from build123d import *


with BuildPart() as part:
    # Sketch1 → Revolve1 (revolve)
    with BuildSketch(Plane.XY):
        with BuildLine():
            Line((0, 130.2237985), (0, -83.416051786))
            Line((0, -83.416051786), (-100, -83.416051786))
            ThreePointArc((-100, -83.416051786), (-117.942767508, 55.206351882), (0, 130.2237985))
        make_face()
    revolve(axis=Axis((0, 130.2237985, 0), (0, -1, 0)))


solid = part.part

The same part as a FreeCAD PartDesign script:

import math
import FreeCAD as App
import Part
import Sketcher

doc = App.newDocument("Part")
params = doc.addObject("Spreadsheet::Sheet", "Params")
for row, (alias, value) in enumerate([
    ("sketch1_width", "100 mm"),
    ("revolution_angle", "360 deg"),
], start=1):
    params.set(f"A{row}", alias)
    params.set(f"B{row}", "=" + value)
    params.setAlias(f"B{row}", alias)

body = doc.addObject("PartDesign::Body", "Body")

sketch1 = doc.addObject("Sketcher::SketchObject", "Sketch")
body.addObject(sketch1)
sketch1.AttachmentSupport = (doc.XY_Plane, [""])
sketch1.MapMode = "FlatFace"
sketch1.addGeometry(Part.LineSegment(App.Vector(0, -83, 0), App.Vector(0, 130, 0)), False)
sketch1.addGeometry(Part.ArcOfCircle(Part.Circle(App.Vector(0, 0, 0), App.Vector(0, 0, 1), 130), math.radians(90), math.radians(220)), False)
sketch1.addGeometry(Part.LineSegment(App.Vector(-100, -83, 0), App.Vector(0, -83, 0)), False)
sketch1.addConstraint(Sketcher.Constraint("Coincident", 0, 2, 1, 1))
sketch1.addConstraint(Sketcher.Constraint("Coincident", 1, 2, 2, 1))
sketch1.addConstraint(Sketcher.Constraint("Coincident", 2, 2, 0, 1))
sketch1.addConstraint(Sketcher.Constraint("Vertical", 0))
sketch1.addConstraint(Sketcher.Constraint("Horizontal", 2))
sketch1.addConstraint(Sketcher.Constraint("Coincident", 1, 3, -1, 1))
sketch1.addConstraint(Sketcher.Constraint("PointOnObject", 0, 2, -2))
sketch1.addConstraint(Sketcher.Constraint("DistanceX", 2, 1, 2, 2, 100.0))
sketch1.addConstraint(Sketcher.Constraint("Radius", 1, 130.223798))
sketch1.setExpression("Constraints[7]", "Params.sketch1_width")
revolution = doc.addObject("PartDesign::Revolution", "Revolution")
body.addObject(revolution)
revolution.Profile = sketch1
revolution.ReferenceAxis = (sketch1, ["V_Axis"])
revolution.setExpression("Angle", "Params.revolution_angle")

doc.recompute()
